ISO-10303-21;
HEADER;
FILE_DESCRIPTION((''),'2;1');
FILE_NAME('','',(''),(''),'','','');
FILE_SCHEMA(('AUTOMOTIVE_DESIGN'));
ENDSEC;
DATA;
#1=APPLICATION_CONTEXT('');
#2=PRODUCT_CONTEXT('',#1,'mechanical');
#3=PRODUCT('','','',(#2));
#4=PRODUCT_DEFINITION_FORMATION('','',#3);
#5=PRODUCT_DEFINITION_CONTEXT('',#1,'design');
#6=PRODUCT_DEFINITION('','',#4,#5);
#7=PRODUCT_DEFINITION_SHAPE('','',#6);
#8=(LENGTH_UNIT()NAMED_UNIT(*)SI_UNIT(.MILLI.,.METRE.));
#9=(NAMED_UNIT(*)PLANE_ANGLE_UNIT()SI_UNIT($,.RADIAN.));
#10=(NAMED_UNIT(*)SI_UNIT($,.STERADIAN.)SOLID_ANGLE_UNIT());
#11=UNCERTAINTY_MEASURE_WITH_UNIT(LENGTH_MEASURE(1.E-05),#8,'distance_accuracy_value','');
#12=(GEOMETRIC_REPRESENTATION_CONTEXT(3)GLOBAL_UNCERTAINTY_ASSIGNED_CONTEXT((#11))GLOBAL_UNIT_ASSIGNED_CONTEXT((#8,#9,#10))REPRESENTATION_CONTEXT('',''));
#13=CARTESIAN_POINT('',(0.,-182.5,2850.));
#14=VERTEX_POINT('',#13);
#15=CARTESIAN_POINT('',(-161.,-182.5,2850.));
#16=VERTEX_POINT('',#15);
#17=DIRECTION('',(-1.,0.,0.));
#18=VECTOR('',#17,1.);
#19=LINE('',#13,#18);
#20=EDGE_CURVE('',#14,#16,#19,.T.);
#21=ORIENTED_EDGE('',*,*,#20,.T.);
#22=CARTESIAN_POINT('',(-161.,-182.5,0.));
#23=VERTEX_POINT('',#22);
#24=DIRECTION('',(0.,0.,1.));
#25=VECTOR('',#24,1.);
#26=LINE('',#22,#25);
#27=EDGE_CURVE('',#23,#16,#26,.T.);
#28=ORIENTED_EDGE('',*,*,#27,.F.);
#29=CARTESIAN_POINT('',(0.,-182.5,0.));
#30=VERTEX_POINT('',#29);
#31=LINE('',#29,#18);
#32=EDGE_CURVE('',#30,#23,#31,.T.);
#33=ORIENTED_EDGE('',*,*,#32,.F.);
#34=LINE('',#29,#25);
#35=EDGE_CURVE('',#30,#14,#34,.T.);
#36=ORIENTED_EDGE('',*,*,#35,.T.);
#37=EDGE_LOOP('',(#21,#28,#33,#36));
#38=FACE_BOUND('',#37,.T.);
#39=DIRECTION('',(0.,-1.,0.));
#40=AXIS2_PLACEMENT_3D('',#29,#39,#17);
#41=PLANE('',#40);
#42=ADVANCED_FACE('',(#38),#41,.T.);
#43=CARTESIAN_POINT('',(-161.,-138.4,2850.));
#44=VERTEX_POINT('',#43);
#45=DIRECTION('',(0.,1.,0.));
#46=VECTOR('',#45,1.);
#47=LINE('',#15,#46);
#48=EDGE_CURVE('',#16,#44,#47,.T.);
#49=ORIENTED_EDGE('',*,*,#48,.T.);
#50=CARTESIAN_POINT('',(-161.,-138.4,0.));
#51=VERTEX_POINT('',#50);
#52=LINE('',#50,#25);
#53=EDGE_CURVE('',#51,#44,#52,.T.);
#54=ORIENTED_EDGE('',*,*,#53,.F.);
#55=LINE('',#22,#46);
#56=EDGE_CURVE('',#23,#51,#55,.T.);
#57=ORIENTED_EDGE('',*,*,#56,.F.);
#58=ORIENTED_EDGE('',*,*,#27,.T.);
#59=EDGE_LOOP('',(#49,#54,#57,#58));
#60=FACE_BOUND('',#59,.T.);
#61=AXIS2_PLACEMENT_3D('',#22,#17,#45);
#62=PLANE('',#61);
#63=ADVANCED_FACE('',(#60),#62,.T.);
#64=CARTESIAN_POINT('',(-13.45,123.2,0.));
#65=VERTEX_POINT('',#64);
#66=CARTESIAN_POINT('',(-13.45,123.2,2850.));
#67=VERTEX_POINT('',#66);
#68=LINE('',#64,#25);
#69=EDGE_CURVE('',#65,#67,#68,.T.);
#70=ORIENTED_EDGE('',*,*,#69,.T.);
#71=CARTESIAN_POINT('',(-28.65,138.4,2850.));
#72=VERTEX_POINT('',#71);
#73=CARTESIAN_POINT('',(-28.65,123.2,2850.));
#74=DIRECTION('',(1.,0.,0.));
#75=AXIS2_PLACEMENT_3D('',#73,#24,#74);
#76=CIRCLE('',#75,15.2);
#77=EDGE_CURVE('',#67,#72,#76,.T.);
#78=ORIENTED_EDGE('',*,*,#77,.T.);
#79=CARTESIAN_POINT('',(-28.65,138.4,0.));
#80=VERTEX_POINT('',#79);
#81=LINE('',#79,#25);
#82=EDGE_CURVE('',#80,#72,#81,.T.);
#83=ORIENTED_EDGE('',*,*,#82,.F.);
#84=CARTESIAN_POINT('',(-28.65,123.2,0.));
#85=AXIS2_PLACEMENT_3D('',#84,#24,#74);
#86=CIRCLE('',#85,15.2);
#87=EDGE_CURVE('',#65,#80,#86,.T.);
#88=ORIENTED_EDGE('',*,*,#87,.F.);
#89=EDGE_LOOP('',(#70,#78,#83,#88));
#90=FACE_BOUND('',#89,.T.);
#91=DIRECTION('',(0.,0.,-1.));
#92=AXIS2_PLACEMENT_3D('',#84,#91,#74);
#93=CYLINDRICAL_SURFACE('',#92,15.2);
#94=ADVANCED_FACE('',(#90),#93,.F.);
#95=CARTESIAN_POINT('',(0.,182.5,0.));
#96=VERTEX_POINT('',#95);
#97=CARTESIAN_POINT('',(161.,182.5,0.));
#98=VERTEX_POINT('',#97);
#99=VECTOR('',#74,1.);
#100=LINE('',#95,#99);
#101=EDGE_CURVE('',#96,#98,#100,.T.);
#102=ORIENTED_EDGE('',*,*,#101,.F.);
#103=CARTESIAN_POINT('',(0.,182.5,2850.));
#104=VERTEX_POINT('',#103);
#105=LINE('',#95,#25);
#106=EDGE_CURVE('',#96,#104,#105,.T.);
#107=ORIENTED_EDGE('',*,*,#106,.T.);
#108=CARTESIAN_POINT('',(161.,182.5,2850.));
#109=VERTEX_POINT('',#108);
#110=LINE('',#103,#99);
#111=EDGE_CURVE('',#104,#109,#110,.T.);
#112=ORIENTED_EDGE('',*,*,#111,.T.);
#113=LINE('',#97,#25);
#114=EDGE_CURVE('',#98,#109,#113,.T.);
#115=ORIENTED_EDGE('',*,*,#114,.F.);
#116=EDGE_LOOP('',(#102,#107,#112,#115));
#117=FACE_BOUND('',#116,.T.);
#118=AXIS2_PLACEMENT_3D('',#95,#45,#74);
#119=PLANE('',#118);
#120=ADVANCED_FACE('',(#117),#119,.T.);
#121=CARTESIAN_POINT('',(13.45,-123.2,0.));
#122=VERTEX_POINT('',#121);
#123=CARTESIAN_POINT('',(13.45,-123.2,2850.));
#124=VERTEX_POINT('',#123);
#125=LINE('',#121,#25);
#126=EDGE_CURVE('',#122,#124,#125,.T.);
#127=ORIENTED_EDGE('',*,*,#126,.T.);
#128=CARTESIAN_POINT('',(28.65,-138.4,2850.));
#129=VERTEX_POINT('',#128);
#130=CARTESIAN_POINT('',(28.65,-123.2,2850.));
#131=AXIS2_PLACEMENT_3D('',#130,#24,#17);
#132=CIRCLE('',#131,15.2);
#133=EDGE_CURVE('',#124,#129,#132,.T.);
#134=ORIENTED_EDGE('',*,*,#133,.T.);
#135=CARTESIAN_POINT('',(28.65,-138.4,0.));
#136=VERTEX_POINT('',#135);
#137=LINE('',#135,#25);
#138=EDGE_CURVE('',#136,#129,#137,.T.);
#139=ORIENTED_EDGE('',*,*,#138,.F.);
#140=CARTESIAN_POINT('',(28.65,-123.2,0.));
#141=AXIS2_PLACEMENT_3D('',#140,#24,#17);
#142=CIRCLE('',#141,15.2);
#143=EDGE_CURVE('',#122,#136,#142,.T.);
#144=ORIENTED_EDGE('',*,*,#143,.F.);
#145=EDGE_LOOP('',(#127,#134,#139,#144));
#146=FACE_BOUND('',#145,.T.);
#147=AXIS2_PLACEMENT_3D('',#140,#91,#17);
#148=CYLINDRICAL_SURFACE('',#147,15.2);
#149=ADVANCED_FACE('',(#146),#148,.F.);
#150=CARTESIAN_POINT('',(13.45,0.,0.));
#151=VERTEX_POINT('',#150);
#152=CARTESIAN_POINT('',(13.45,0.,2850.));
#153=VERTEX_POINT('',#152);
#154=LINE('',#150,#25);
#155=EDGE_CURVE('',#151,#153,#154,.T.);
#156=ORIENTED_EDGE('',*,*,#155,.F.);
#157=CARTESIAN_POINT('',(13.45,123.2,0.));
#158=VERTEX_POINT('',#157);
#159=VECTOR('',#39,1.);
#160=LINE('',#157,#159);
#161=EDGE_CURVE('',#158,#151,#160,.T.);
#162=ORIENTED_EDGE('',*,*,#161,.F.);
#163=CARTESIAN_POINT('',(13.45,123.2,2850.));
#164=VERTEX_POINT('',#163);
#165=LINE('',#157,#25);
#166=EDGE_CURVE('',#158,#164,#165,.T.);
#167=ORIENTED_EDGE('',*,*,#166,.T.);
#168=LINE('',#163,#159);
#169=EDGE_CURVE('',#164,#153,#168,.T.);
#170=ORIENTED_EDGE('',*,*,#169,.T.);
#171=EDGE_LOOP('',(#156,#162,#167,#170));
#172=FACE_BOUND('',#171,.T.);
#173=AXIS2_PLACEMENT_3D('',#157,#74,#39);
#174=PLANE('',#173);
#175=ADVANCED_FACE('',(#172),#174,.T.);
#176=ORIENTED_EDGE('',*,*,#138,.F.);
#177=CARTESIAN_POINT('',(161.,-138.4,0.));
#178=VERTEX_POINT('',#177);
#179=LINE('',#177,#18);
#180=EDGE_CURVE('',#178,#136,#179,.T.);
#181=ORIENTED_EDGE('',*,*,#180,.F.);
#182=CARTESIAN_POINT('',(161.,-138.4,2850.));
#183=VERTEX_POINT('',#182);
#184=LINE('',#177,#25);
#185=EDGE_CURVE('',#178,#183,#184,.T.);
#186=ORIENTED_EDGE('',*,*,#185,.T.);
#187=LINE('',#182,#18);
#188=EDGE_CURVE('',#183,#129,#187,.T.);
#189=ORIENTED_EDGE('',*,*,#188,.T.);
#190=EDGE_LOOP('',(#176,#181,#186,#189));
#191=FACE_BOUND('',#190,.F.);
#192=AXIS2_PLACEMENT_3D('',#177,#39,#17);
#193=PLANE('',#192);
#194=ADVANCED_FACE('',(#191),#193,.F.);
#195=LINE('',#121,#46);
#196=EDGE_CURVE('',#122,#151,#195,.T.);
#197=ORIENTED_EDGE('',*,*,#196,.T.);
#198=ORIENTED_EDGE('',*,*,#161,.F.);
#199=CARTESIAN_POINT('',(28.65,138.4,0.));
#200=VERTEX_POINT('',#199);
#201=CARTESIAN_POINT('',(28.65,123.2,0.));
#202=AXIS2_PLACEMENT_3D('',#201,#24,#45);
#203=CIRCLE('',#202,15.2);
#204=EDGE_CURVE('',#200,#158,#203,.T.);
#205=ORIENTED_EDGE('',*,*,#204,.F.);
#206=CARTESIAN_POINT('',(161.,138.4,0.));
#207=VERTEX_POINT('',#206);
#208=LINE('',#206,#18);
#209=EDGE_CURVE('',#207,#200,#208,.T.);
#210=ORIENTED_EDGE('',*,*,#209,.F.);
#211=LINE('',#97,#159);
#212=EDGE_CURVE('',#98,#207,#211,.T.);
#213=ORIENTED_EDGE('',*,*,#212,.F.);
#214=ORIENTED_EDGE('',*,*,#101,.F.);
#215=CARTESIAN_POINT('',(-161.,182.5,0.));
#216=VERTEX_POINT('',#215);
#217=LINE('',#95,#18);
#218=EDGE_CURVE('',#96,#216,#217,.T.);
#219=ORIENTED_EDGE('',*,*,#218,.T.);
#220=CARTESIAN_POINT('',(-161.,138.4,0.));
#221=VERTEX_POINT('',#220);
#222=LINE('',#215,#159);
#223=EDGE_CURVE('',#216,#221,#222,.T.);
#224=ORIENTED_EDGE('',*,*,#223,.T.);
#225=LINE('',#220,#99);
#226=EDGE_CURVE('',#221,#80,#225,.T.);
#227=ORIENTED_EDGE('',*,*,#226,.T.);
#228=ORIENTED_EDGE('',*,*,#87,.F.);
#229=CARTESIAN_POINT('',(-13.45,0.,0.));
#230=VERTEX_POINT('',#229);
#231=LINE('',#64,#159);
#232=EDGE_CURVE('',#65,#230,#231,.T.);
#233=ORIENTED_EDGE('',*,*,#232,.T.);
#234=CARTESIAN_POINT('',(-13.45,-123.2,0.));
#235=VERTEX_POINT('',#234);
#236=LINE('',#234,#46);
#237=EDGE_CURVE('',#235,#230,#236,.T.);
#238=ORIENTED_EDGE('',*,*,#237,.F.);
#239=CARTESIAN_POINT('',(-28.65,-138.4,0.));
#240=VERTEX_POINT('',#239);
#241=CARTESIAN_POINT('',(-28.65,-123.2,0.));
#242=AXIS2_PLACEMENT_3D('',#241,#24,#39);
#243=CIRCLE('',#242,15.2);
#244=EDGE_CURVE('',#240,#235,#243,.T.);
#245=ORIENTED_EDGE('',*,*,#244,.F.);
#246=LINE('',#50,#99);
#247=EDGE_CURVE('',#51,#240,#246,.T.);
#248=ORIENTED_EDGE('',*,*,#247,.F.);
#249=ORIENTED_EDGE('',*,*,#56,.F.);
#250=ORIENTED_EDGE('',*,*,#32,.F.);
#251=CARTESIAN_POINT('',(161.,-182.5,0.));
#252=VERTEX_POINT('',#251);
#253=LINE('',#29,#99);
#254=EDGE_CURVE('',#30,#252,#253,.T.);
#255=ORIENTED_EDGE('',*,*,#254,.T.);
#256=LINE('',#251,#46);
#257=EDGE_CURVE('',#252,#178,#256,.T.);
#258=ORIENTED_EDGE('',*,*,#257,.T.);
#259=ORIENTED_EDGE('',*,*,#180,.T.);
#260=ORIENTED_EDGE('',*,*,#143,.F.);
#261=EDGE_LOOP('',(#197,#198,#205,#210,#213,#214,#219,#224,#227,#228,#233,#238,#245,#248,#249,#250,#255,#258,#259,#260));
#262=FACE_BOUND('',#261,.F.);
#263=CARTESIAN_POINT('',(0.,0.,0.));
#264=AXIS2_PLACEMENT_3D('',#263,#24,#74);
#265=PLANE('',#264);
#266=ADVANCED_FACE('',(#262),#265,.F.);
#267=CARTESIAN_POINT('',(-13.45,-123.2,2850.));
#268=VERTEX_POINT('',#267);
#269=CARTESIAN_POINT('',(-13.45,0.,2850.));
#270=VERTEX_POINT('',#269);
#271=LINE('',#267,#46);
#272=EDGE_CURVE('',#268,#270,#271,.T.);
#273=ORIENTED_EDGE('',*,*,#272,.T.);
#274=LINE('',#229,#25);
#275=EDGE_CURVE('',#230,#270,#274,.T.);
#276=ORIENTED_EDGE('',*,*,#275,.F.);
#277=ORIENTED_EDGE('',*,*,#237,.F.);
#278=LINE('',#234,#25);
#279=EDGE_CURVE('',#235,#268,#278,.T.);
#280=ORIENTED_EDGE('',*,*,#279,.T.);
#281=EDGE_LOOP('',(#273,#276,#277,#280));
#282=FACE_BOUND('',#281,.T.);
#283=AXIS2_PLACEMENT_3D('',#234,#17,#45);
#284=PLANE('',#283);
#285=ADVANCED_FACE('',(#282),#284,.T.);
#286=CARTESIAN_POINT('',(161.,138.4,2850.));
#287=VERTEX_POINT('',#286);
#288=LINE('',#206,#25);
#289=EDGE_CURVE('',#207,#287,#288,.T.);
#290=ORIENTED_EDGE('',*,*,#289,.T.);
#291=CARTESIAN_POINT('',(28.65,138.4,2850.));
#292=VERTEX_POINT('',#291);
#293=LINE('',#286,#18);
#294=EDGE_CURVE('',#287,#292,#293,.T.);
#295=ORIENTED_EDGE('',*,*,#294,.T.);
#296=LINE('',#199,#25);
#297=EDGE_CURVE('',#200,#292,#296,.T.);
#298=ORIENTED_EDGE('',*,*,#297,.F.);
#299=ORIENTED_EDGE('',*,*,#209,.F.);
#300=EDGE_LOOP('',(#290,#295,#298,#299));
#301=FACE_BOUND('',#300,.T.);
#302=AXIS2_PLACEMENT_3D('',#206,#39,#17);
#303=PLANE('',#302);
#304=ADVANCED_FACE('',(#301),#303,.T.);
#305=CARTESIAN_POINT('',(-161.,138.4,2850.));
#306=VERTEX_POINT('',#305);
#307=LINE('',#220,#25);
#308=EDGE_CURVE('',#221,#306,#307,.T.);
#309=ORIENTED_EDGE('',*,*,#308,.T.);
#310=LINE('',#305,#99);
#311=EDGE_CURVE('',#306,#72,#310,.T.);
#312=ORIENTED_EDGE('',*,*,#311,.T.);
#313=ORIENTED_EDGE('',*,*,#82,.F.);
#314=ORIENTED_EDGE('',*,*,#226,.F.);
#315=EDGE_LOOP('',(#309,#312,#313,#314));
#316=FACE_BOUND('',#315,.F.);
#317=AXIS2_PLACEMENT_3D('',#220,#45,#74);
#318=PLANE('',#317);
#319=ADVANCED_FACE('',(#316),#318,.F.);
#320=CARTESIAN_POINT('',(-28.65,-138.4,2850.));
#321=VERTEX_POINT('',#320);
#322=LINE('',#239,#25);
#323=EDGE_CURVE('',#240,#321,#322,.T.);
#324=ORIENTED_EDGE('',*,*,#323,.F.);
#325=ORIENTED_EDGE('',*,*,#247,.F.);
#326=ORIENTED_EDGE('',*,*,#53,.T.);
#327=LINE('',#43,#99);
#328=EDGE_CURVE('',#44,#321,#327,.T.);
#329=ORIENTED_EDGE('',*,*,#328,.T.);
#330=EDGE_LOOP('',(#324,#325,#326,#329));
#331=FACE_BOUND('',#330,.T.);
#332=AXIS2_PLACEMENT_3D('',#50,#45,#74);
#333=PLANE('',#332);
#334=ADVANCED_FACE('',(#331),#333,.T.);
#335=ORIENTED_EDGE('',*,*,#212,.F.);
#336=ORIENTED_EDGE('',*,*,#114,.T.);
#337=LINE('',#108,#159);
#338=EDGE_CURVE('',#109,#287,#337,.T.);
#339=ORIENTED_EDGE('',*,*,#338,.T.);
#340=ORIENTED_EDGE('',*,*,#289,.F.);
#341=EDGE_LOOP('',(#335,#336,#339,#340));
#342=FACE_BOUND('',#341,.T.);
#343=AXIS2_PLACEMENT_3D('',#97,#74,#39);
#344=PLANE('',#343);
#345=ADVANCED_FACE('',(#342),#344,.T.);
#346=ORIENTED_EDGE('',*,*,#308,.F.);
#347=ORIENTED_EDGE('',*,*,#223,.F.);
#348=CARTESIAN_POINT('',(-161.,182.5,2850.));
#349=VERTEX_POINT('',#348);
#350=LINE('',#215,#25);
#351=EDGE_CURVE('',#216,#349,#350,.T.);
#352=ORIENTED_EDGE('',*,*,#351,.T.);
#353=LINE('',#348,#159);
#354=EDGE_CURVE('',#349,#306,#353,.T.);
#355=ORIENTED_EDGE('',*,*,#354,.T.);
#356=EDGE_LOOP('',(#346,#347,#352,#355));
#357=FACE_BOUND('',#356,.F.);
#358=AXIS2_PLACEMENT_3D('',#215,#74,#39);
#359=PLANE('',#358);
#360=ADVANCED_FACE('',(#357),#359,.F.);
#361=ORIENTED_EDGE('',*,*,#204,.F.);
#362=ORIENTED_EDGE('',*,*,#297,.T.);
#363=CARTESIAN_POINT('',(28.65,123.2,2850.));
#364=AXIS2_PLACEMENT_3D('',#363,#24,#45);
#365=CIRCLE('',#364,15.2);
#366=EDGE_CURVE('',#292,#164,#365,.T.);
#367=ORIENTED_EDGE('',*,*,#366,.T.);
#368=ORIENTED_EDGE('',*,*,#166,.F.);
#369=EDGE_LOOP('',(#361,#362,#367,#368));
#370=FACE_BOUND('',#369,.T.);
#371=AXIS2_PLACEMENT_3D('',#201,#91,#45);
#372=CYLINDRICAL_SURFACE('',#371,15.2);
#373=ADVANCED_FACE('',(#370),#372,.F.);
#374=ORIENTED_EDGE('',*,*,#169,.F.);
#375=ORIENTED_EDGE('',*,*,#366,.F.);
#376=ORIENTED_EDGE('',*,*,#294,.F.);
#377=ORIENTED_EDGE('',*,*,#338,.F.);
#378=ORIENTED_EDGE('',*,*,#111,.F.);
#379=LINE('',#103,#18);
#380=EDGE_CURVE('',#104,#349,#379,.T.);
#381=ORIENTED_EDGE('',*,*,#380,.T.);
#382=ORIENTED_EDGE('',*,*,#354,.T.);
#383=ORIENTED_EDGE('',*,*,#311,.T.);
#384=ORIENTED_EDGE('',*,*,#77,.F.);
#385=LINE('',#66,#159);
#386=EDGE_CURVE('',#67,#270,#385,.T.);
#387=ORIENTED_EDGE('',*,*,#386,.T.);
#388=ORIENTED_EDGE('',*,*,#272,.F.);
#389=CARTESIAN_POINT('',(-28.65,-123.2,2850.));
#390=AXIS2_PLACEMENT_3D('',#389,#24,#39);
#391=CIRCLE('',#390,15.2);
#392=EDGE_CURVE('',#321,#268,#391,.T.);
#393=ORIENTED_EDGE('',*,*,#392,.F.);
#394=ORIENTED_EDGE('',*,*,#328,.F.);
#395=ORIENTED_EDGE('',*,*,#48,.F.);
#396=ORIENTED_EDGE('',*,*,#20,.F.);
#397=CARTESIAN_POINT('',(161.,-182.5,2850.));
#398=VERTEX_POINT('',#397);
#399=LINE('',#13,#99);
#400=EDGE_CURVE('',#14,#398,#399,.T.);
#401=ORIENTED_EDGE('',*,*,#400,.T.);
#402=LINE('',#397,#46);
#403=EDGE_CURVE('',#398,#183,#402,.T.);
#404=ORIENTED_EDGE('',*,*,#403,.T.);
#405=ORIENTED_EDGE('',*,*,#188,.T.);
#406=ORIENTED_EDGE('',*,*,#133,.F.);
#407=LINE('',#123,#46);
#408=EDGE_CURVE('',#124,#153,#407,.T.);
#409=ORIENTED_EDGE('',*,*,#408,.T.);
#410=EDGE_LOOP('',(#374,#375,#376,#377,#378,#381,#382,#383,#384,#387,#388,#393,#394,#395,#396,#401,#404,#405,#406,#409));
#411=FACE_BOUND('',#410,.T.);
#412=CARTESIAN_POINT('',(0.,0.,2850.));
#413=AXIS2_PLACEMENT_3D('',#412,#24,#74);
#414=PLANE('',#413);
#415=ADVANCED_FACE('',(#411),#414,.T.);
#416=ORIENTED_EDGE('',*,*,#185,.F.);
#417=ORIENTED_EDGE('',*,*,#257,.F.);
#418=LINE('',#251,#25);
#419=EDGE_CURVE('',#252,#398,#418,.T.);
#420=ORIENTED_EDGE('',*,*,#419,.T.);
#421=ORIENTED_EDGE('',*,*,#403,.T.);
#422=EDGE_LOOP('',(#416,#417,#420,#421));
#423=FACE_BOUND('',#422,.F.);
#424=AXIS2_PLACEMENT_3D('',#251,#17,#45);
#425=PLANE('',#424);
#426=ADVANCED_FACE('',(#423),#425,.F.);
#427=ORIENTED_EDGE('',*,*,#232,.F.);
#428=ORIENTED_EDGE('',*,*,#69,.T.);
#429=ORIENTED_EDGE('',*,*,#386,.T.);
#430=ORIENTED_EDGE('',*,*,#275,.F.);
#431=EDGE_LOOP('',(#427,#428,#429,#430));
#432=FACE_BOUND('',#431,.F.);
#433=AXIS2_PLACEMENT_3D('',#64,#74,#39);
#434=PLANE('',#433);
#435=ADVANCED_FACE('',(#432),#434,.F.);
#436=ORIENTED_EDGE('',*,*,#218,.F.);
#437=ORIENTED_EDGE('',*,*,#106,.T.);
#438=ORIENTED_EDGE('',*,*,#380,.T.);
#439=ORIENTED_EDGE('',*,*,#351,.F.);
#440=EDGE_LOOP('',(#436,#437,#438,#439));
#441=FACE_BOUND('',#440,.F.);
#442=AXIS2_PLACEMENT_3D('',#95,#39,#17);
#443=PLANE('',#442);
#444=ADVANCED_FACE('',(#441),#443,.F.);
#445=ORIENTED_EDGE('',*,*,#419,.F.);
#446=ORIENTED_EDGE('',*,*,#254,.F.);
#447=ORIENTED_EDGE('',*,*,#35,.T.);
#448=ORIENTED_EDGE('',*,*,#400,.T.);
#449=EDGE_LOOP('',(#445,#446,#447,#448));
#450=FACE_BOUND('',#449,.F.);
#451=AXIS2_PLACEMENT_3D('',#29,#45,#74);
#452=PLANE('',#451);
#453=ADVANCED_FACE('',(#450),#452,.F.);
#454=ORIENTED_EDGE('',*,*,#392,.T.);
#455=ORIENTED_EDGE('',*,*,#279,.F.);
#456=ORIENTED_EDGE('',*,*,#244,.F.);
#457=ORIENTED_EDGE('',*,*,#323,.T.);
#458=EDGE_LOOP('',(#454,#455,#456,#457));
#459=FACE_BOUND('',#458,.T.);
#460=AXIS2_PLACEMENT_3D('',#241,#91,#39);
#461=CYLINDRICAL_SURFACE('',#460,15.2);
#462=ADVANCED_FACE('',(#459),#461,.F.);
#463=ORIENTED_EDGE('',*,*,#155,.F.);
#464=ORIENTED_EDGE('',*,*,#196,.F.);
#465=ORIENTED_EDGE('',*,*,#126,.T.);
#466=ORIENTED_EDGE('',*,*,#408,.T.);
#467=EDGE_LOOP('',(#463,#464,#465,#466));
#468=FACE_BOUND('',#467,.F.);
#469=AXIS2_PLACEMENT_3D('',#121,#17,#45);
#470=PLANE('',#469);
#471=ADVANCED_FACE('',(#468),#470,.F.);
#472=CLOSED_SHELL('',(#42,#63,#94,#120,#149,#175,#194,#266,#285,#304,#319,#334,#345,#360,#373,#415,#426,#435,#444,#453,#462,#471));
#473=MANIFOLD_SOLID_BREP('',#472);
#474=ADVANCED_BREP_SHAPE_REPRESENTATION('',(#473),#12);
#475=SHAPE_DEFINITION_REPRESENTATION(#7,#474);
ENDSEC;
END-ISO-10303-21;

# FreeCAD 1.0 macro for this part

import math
import FreeCAD as App
import Part
import Sketcher
from FreeCAD import Vector
Q = App.Units.Quantity

doc = App.newDocument("Part")
body = doc.addObject("PartDesign::Body", "Body")

# Sketch on XY plane
sketch1 = body.newObject("Sketcher::SketchObject", "Sketch")
sketch1.AttachmentSupport = (doc.getObject("XY_Plane"), [""])
sketch1.MapMode = "FlatFace"
sketch1.addGeometry([
    Part.LineSegment(Vector(-161, -138, 0), Vector(-161, -182, 0)),  # 0
    Part.LineSegment(Vector(-161, -182, 0), Vector(161, -182, 0)),  # 1
    Part.LineSegment(Vector(161, -182, 0), Vector(161, -138, 0)),  # 2
    Part.LineSegment(Vector(161, -138, 0), Vector(29, -138, 0)),  # 3
    Part.ArcOfCircle(Part.Circle(Vector(29, -123, 0), Vector(0, 0, 1), 15), math.radians(180), math.radians(270)),  # 4
    Part.LineSegment(Vector(13, -123, 0), Vector(13, 123, 0)),  # 5
    Part.ArcOfCircle(Part.Circle(Vector(29, 123, 0), Vector(0, 0, 1), 15), math.radians(90), math.radians(180)),  # 6
    Part.LineSegment(Vector(29, 138, 0), Vector(161, 138, 0)),  # 7
    Part.LineSegment(Vector(161, 138, 0), Vector(161, 182, 0)),  # 8
    Part.LineSegment(Vector(161, 182, 0), Vector(-161, 182, 0)),  # 9
    Part.LineSegment(Vector(-161, 182, 0), Vector(-161, 138, 0)),  # 10
    Part.LineSegment(Vector(-161, 138, 0), Vector(-29, 138, 0)),  # 11
    Part.ArcOfCircle(Part.Circle(Vector(-29, 123, 0), Vector(0, 0, 1), 15), math.radians(0), math.radians(90)),  # 12
    Part.LineSegment(Vector(-13, 123, 0), Vector(-13, -123, 0)),  # 13
    Part.ArcOfCircle(Part.Circle(Vector(-29, -123, 0), Vector(0, 0, 1), 15), math.radians(-90), math.radians(0)),  # 14
    Part.LineSegment(Vector(-29, -138, 0), Vector(-161, -138, 0)),  # 15
], False)
sketch1.addConstraint([
    Sketcher.Constraint("Coincident", 0, 2, 1, 1),
    Sketcher.Constraint("Coincident", 1, 2, 2, 1),
    Sketcher.Constraint("Coincident", 2, 2, 3, 1),
    Sketcher.Constraint("Tangent", 3, 2, 4, 2),
    Sketcher.Constraint("Tangent", 4, 1, 5, 1),
    Sketcher.Constraint("Tangent", 5, 2, 6, 2),
    Sketcher.Constraint("Tangent", 6, 1, 7, 1),
    Sketcher.Constraint("Coincident", 7, 2, 8, 1),
    Sketcher.Constraint("Coincident", 8, 2, 9, 1),
    Sketcher.Constraint("Coincident", 9, 2, 10, 1),
    Sketcher.Constraint("Coincident", 10, 2, 11, 1),
    Sketcher.Constraint("Tangent", 11, 2, 12, 2),
    Sketcher.Constraint("Tangent", 12, 1, 13, 1),
    Sketcher.Constraint("Tangent", 13, 2, 14, 2),
    Sketcher.Constraint("Tangent", 14, 1, 15, 1),
    Sketcher.Constraint("Coincident", 15, 2, 0, 1),
    Sketcher.Constraint("Vertical", 0),
    Sketcher.Constraint("Horizontal", 1),
    Sketcher.Constraint("Vertical", 2),
    Sketcher.Constraint("Horizontal", 3),
    Sketcher.Constraint("Vertical", 5),
    Sketcher.Constraint("Horizontal", 7),
    Sketcher.Constraint("Vertical", 8),
    Sketcher.Constraint("Horizontal", 9),
    Sketcher.Constraint("Vertical", 10),
    Sketcher.Constraint("Horizontal", 11),
    Sketcher.Constraint("Vertical", 13),
    Sketcher.Constraint("Horizontal", 15),
    Sketcher.Constraint("Equal", 4, 6),
    Sketcher.Constraint("Equal", 6, 12),
    Sketcher.Constraint("Equal", 12, 14),
    Sketcher.Constraint("Symmetric", 4, 3, 12, 3, -1, 1),
    Sketcher.Constraint("Symmetric", 0, 2, 8, 2, -1, 1),
    Sketcher.Constraint("Symmetric", 7, 2, 10, 2, -2),
    Sketcher.Constraint("Symmetric", 2, 2, 15, 2, -2),
    Sketcher.Constraint("Radius", 4, Q("15.2 mm")),
    Sketcher.Constraint("DistanceY", 0, 2, 0, 1, Q("44.1 mm")),
    Sketcher.Constraint("DistanceX", 0, 2, -1, 1, Q("161 mm")),
    Sketcher.Constraint("DistanceY", 0, 2, -1, 1, Q("182.5 mm")),
    Sketcher.Constraint("DistanceX", -1, 1, 4, 1, Q("13.45 mm")),
])
pad1 = body.newObject("PartDesign::Pad", "Pad")
pad1.Profile = sketch1
pad1.Length = 2850

doc.recompute()
